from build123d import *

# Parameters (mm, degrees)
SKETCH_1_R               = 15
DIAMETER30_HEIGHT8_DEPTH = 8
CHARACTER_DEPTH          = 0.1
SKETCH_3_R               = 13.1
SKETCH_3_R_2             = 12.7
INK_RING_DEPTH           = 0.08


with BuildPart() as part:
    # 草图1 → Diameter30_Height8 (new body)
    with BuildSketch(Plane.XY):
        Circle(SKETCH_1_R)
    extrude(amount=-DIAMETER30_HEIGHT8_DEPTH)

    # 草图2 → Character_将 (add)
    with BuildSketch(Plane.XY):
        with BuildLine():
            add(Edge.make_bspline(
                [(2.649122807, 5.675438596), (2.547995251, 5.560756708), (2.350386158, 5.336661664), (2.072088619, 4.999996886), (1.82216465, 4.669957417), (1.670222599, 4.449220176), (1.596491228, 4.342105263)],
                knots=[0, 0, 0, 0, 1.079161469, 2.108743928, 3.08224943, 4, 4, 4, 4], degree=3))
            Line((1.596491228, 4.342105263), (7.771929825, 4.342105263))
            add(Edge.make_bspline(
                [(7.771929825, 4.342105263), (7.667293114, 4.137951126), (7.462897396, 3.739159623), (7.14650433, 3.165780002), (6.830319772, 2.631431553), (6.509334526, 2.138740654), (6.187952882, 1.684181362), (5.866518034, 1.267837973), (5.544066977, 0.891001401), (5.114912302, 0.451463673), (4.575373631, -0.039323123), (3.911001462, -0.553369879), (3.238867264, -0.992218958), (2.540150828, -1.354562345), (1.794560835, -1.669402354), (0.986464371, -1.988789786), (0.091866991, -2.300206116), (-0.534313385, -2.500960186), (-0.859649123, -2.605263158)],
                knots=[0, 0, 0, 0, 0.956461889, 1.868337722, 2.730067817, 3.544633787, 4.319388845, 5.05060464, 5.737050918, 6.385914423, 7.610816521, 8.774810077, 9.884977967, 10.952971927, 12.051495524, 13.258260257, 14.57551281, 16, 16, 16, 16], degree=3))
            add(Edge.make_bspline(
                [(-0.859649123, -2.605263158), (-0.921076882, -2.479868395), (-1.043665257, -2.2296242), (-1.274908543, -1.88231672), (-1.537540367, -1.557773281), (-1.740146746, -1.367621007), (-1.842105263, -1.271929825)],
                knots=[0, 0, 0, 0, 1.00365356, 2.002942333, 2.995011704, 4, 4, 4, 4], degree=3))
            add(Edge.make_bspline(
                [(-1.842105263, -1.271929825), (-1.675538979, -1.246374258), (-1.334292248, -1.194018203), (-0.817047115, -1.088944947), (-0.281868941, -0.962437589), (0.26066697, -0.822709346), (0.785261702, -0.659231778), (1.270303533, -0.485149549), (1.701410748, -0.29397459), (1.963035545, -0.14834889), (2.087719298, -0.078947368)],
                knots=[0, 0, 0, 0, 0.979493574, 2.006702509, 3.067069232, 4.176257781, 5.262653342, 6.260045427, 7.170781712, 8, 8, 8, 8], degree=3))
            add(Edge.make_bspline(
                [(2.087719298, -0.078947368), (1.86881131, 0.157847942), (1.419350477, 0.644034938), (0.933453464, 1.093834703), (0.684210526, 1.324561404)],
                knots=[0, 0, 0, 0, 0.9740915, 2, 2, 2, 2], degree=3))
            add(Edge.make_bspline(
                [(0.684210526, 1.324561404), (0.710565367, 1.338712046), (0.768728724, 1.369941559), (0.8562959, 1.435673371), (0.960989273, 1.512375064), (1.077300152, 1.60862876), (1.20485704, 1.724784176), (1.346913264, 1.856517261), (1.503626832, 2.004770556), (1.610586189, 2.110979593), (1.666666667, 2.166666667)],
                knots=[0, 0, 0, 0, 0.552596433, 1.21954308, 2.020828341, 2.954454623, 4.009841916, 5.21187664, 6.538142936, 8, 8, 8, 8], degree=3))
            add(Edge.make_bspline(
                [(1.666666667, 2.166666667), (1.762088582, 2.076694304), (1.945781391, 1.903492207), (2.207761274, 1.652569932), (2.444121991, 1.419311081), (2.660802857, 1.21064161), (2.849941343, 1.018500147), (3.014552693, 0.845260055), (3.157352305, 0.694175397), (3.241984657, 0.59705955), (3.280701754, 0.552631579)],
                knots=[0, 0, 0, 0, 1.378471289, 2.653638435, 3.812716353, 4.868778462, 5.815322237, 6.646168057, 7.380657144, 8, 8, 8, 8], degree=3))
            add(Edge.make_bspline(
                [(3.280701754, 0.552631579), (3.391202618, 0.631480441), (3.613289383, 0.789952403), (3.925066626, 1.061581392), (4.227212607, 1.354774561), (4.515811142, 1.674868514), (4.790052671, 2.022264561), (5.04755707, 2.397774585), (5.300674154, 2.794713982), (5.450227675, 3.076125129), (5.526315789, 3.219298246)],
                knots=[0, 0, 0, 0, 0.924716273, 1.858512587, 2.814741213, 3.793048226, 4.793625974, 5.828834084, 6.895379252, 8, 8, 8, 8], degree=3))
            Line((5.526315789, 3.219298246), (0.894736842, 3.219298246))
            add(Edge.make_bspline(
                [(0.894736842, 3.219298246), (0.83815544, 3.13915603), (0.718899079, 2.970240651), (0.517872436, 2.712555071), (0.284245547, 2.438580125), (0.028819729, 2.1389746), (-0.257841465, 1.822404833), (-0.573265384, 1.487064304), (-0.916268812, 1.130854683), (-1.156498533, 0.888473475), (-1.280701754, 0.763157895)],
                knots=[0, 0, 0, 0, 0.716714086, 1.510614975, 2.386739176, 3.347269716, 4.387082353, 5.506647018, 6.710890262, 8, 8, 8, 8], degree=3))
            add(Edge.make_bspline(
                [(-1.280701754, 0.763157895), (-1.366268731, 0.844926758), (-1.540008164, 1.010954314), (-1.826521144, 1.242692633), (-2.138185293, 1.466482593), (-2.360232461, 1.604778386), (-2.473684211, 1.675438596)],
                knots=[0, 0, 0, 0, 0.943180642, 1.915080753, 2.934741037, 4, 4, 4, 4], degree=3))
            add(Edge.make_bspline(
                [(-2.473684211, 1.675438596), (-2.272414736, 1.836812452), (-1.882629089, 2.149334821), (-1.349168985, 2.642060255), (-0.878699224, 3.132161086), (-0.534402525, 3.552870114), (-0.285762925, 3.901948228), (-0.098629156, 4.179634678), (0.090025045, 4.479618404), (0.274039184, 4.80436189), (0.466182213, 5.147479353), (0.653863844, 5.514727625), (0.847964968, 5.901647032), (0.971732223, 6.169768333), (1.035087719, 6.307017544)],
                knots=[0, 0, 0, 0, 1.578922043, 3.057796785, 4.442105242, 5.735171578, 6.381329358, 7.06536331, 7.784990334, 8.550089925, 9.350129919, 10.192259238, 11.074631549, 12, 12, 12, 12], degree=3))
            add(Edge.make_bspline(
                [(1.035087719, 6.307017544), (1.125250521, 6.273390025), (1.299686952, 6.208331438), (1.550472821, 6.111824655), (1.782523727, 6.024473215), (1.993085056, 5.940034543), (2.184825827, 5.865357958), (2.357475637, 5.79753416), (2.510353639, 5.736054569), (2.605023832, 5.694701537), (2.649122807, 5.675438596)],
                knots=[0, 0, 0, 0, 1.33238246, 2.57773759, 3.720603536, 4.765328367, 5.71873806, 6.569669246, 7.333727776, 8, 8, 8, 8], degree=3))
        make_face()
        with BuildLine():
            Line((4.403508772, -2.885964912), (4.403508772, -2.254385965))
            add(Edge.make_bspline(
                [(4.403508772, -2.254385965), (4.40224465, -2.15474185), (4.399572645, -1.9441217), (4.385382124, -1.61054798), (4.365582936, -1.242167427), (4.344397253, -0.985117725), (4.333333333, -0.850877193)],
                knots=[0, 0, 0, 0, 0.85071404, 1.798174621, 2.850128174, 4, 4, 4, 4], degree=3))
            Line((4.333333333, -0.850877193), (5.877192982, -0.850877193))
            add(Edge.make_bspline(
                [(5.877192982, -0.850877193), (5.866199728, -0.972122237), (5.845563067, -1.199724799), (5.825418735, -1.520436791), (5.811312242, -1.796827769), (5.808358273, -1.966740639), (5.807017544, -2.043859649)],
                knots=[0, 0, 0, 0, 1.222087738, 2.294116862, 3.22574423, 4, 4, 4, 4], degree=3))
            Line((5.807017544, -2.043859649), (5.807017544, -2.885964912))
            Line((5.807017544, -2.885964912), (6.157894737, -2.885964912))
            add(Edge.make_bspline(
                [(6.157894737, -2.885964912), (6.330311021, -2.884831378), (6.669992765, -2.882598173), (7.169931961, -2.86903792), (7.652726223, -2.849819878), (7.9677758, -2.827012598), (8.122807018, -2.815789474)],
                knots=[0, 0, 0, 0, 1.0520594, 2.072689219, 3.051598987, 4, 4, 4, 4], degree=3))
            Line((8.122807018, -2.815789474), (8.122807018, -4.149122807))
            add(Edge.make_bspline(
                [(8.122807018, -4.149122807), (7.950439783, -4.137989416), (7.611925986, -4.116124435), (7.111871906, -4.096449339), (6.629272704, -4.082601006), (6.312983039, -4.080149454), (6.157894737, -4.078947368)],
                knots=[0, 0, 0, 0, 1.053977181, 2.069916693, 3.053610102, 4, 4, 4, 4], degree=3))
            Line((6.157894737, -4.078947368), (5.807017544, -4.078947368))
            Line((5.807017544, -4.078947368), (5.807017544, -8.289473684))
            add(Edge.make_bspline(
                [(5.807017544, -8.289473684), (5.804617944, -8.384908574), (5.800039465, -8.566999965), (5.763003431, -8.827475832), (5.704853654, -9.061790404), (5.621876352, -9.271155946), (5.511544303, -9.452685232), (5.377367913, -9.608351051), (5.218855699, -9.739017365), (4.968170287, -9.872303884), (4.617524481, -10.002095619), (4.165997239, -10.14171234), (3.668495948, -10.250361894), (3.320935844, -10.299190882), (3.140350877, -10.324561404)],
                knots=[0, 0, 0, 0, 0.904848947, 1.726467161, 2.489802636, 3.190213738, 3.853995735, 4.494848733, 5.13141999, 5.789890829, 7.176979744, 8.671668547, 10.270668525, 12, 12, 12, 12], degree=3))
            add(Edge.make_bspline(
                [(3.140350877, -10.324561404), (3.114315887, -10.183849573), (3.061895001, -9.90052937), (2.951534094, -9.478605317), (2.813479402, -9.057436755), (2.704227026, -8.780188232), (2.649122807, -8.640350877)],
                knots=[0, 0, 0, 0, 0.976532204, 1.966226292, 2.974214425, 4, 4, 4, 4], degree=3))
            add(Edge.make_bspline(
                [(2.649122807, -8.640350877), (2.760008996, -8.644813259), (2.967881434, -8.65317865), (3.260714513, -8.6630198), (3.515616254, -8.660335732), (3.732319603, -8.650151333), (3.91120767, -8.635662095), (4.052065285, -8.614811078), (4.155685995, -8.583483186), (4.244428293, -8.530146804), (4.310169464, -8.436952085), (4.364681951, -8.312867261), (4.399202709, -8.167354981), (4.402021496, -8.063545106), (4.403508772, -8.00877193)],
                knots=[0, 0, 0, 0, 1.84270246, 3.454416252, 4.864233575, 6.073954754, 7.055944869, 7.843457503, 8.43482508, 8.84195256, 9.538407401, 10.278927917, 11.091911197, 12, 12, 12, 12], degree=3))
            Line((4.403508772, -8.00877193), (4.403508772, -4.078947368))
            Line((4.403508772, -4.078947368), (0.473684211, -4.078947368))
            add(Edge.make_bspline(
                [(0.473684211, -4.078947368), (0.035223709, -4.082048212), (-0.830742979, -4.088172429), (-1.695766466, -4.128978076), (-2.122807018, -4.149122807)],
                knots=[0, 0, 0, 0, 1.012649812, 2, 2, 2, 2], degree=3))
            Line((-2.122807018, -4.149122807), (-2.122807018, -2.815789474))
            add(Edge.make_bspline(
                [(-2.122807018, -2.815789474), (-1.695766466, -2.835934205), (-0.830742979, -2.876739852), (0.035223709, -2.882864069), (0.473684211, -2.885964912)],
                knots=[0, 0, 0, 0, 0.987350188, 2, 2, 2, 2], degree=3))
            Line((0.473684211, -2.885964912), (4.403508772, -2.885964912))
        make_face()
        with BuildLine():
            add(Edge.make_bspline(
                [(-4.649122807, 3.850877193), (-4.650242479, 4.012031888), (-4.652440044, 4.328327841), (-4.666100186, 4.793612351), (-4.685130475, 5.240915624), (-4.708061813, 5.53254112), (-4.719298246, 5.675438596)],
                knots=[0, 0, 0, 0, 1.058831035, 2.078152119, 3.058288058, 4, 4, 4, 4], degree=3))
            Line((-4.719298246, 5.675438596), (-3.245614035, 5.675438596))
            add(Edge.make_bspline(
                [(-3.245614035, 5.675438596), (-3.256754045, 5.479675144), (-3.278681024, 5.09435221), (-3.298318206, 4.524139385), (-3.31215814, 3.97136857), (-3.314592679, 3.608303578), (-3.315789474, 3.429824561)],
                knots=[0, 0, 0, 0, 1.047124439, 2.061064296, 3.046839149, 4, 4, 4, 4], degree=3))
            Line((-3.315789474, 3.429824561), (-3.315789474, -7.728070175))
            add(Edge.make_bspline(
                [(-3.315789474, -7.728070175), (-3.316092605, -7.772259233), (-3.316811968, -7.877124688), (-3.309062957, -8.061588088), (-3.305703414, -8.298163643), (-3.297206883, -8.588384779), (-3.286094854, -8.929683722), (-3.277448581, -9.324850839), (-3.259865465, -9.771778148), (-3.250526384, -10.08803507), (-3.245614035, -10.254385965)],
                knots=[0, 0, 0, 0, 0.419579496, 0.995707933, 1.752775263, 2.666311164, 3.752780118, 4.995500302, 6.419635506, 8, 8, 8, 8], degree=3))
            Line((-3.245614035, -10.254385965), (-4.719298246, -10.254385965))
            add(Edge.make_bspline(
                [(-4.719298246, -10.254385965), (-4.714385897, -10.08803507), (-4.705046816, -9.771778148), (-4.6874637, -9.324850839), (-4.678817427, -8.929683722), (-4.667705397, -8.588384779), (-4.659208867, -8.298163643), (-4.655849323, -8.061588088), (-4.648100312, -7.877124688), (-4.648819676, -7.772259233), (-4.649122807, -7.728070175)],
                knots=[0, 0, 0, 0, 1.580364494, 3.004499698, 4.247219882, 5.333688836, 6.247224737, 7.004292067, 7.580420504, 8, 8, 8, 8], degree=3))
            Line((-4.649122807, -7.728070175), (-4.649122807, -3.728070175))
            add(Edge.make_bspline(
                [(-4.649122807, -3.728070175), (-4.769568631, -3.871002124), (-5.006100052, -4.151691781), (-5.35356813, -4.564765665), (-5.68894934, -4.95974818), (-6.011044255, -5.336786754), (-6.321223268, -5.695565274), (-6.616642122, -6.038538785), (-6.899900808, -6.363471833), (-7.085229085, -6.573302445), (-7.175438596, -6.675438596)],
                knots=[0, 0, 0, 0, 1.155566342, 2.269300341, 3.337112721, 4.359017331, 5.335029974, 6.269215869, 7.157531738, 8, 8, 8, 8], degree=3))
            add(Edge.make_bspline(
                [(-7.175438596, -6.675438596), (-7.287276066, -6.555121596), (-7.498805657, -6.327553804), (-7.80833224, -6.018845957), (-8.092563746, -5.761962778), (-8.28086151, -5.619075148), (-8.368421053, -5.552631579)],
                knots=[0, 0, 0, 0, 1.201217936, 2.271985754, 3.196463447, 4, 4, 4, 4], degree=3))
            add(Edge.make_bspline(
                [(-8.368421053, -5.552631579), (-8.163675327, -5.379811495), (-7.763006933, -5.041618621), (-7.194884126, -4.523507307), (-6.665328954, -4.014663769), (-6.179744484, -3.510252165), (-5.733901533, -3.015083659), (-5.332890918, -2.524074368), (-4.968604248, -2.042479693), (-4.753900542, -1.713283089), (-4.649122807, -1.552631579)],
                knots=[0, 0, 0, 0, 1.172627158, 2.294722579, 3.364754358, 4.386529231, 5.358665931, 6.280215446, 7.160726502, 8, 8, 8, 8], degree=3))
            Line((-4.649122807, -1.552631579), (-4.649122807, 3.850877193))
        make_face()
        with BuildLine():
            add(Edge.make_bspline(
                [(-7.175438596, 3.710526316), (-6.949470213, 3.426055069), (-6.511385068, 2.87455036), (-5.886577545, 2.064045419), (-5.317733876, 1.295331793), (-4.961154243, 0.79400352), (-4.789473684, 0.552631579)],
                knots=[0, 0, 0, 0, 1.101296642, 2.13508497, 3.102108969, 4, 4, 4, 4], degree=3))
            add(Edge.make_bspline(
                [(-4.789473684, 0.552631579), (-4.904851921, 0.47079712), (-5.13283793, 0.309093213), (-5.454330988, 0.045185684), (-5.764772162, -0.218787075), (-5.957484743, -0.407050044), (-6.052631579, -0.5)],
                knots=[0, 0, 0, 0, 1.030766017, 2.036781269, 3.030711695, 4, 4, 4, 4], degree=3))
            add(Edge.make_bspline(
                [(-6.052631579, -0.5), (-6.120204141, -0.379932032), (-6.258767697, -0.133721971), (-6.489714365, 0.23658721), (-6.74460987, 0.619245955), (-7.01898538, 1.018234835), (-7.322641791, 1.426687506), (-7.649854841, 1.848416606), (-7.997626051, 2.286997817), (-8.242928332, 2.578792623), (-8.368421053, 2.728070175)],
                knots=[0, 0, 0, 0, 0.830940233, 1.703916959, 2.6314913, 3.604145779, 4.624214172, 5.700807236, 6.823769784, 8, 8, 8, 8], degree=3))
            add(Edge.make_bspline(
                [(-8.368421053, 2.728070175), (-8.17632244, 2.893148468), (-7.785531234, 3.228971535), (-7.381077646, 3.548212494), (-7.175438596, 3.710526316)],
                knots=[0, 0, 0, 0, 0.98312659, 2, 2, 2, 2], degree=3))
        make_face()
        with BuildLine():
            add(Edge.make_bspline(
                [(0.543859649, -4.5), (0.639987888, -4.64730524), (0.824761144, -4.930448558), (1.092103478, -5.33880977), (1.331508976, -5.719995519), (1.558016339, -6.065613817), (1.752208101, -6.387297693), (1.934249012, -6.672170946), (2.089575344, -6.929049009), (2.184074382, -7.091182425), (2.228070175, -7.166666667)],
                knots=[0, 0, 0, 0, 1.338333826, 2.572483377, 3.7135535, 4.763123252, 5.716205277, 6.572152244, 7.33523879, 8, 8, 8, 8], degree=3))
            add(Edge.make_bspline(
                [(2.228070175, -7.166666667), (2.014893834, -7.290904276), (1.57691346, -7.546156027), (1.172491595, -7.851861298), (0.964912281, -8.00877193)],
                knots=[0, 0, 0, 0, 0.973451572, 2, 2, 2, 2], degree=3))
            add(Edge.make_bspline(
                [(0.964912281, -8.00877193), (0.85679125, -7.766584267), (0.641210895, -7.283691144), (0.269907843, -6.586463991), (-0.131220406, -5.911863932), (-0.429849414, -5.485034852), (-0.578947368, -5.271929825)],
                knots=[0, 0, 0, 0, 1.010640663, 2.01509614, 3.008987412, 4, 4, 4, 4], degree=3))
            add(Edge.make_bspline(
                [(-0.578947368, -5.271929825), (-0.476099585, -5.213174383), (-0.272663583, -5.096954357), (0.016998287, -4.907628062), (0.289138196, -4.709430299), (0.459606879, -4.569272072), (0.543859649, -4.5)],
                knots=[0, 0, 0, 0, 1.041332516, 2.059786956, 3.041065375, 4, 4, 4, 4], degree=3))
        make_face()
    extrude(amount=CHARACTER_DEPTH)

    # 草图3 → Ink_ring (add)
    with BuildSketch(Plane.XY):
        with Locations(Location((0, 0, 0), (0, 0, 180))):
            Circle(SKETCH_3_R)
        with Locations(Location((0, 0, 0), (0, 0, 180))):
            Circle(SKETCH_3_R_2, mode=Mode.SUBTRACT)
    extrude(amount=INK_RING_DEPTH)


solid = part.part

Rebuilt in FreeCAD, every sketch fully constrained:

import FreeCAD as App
import Part
import Sketcher
Q = App.Units.Quantity

doc = App.newDocument("Part")
params = doc.addObject("Spreadsheet::Sheet", "Params")
for row, (alias, value) in enumerate([
    ("sketch1_diameter", "30 mm"),
    ("pad1_length", "8 mm"),
    ("pad2_length", "0.1 mm"),
    ("sketch3_diameter", "26.2 mm"),
    ("sketch3_diameter2", "25.4 mm"),
    ("pad3_length", "0.08 mm"),
], start=1):
    params.set(f"A{row}", alias)
    params.set(f"B{row}", "=" + value)
    params.setAlias(f"B{row}", alias)

body = doc.addObject("PartDesign::Body", "Body")

sketch1 = doc.addObject("Sketcher::SketchObject", "Sketch")
body.addObject(sketch1)
sketch1.AttachmentSupport = (doc.XY_Plane, [""])
sketch1.MapMode = "FlatFace"
sketch1.addGeometry(Part.Circle(App.Vector(0, 0, 0), App.Vector(0, 0, 1), 15), False)
sketch1.addConstraint(Sketcher.Constraint("Coincident", 0, 3, -1, 1))
sketch1.addConstraint(Sketcher.Constraint("Diameter", 0, Q("30 mm")))
sketch1.setExpression("Constraints[1]", "Params.sketch1_diameter")
pad1 = doc.addObject("PartDesign::Pad", "Pad")
body.addObject(pad1)
pad1.Profile = sketch1
pad1.setExpression("Length", "Params.pad1_length")
pad1.Reversed = True

sketch2 = doc.addObject("Sketcher::SketchObject", "Sketch001")
body.addObject(sketch2)
sketch2.AttachmentSupport = (doc.XY_Plane, [""])
sketch2.MapMode = "FlatFace"
sketch2.addGeometry(Part.BSplineCurve([App.Vector(2.649123, 5.675439, 0), App.Vector(2.547995, 5.560757, 0), App.Vector(2.350386, 5.336662, 0), App.Vector(2.072089, 4.999997, 0), App.Vector(1.822165, 4.669957, 0), App.Vector(1.670223, 4.44922, 0), App.Vector(1.596491, 4.342105, 0)], [4, 1, 1, 1, 4], [0, 1.079161469, 2.108743928, 3.08224943, 4], False, 3, [1, 1, 1, 1, 1, 1, 1], False), False)
sketch2.addGeometry(Part.BSplineCurve([App.Vector(1.035088, 6.307018, 0), App.Vector(1.125251, 6.27339, 0), App.Vector(1.299687, 6.208331, 0), App.Vector(1.550473, 6.111825, 0), App.Vector(1.782524, 6.024473, 0), App.Vector(1.993085, 5.940035, 0), App.Vector(2.184826, 5.865358, 0), App.Vector(2.357476, 5.797534, 0), App.Vector(2.510354, 5.736055, 0), App.Vector(2.605024, 5.694702, 0), App.Vector(2.649123, 5.675439, 0)], [4, 1, 1, 1, 1, 1, 1, 1, 4], [0, 1.33238246, 2.57773759, 3.720603536, 4.765328367, 5.71873806, 6.569669246, 7.333727776, 8], False, 3, [1, 1, 1, 1, 1, 1, 1, 1, 1, 1, 1], False), False)
sketch2.addGeometry(Part.BSplineCurve([App.Vector(-2.473684, 1.675439, 0), App.Vector(-2.272415, 1.836812, 0), App.Vector(-1.882629, 2.149335, 0), App.Vector(-1.349169, 2.64206, 0), App.Vector(-0.878699, 3.132161, 0), App.Vector(-0.534403, 3.55287, 0), App.Vector(-0.285763, 3.901948, 0), App.Vector(-0.098629, 4.179635, 0), App.Vector(0.090025, 4.479618, 0), App.Vector(0.274039, 4.804362, 0), App.Vector(0.466182, 5.147479, 0), App.Vector(0.653864, 5.514728, 0), App.Vector(0.847965, 5.901647, 0), App.Vector(0.971732, 6.169768, 0), App.Vector(1.035088, 6.307018, 0)], [4, 1, 1, 1, 1, 1, 1, 1, 1, 1, 1, 1, 4], [0, 1.578922043, 3.057796785, 4.442105242, 5.735171578, 6.381329358, 7.06536331, 7.784990334, 8.550089925, 9.350129919, 10.192259238, 11.074631549, 12], False, 3, [1, 1, 1, 1, 1, 1, 1, 1, 1, 1, 1, 1, 1, 1, 1], False), False)
sketch2.addGeometry(Part.BSplineCurve([App.Vector(-1.280702, 0.763158, 0), App.Vector(-1.366269, 0.844927, 0), App.Vector(-1.540008, 1.010954, 0), App.Vector(-1.826521, 1.242693, 0), App.Vector(-2.138185, 1.466483, 0), App.Vector(-2.360232, 1.604778, 0), App.Vector(-2.473684, 1.675439, 0)], [4, 1, 1, 1, 4], [0, 0.943180642, 1.915080753, 2.934741037, 4], False, 3, [1, 1, 1, 1, 1, 1, 1], False), False)
sketch2.addGeometry(Part.BSplineCurve([App.Vector(0.894737, 3.219298, 0), App.Vector(0.838155, 3.139156, 0), App.Vector(0.718899, 2.970241, 0), App.Vector(0.517872, 2.712555, 0), App.Vector(0.284246, 2.43858, 0), App.Vector(0.02882, 2.138975, 0), App.Vector(-0.257841, 1.822405, 0), App.Vector(-0.573265, 1.487064, 0), App.Vector(-0.916269, 1.130855, 0), App.Vector(-1.156499, 0.888473, 0), App.Vector(-1.280702, 0.763158, 0)], [4, 1, 1, 1, 1, 1, 1, 1, 4], [0, 0.716714086, 1.510614975, 2.386739176, 3.347269716, 4.387082353, 5.506647018, 6.710890262, 8], False, 3, [1, 1, 1, 1, 1, 1, 1, 1, 1, 1, 1], False), False)
sketch2.addGeometry(Part.LineSegment(App.Vector(0.894737, 3.219298, 0), App.Vector(5.526316, 3.219298, 0)), False)
sketch2.addGeometry(Part.BSplineCurve([App.Vector(3.280702, 0.552632, 0), App.Vector(3.391203, 0.63148, 0), App.Vector(3.613289, 0.789952, 0), App.Vector(3.925067, 1.061581, 0), App.Vector(4.227213, 1.354775, 0), App.Vector(4.515811, 1.674869, 0), App.Vector(4.790053, 2.022265, 0), App.Vector(5.047557, 2.397775, 0), App.Vector(5.300674, 2.794714, 0), App.Vector(5.450228, 3.076125, 0), App.Vector(5.526316, 3.219298, 0)], [4, 1, 1, 1, 1, 1, 1, 1, 4], [0, 0.924716273, 1.858512587, 2.814741213, 3.793048226, 4.793625974, 5.828834084, 6.895379252, 8], False, 3, [1, 1, 1, 1, 1, 1, 1, 1, 1, 1, 1], False), False)
sketch2.addGeometry(Part.BSplineCurve([App.Vector(1.666667, 2.166667, 0), App.Vector(1.762089, 2.076694, 0), App.Vector(1.945781, 1.903492, 0), App.Vector(2.207761, 1.65257, 0), App.Vector(2.444122, 1.419311, 0), App.Vector(2.660803, 1.210642, 0), App.Vector(2.849941, 1.0185, 0), App.Vector(3.014553, 0.84526, 0), App.Vector(3.157352, 0.694175, 0), App.Vector(3.241985, 0.59706, 0), App.Vector(3.280702, 0.552632, 0)], [4, 1, 1, 1, 1, 1, 1, 1, 4], [0, 1.378471289, 2.653638435, 3.812716353, 4.868778462, 5.815322237, 6.646168057, 7.380657144, 8], False, 3, [1, 1, 1, 1, 1, 1, 1, 1, 1, 1, 1], False), False)
sketch2.addGeometry(Part.BSplineCurve([App.Vector(0.684211, 1.324561, 0), App.Vector(0.710565, 1.338712, 0), App.Vector(0.768729, 1.369942, 0), App.Vector(0.856296, 1.435673, 0), App.Vector(0.960989, 1.512375, 0), App.Vector(1.0773, 1.608629, 0), App.Vector(1.204857, 1.724784, 0), App.Vector(1.346913, 1.856517, 0), App.Vector(1.503627, 2.004771, 0), App.Vector(1.610586, 2.11098, 0), App.Vector(1.666667, 2.166667, 0)], [4, 1, 1, 1, 1, 1, 1, 1, 4], [0, 0.552596433, 1.21954308, 2.020828341, 2.954454623, 4.009841916, 5.21187664, 6.538142936, 8], False, 3, [1, 1, 1, 1, 1, 1, 1, 1, 1, 1, 1], False), False)
sketch2.addGeometry(Part.BSplineCurve([App.Vector(2.087719, -0.078947, 0), App.Vector(1.868811, 0.157848, 0), App.Vector(1.41935, 0.644035, 0), App.Vector(0.933453, 1.093835, 0), App.Vector(0.684211, 1.324561, 0)], [4, 1, 4], [0, 0.9740915, 2], False, 3, [1, 1, 1, 1, 1], False), False)
sketch2.addGeometry(Part.BSplineCurve([App.Vector(-1.842105, -1.27193, 0), App.Vector(-1.675539, -1.246374, 0), App.Vector(-1.334292, -1.194018, 0), App.Vector(-0.817047, -1.088945, 0), App.Vector(-0.281869, -0.962438, 0), App.Vector(0.260667, -0.822709, 0), App.Vector(0.785262, -0.659232, 0), App.Vector(1.270304, -0.48515, 0), App.Vector(1.701411, -0.293975, 0), App.Vector(1.963036, -0.148349, 0), App.Vector(2.087719, -0.078947, 0)], [4, 1, 1, 1, 1, 1, 1, 1, 4], [0, 0.979493574, 2.006702509, 3.067069232, 4.176257781, 5.262653342, 6.260045427, 7.170781712, 8], False, 3, [1, 1, 1, 1, 1, 1, 1, 1, 1, 1, 1], False), False)
sketch2.addGeometry(Part.BSplineCurve([App.Vector(-0.859649, -2.605263, 0), App.Vector(-0.921077, -2.479868, 0), App.Vector(-1.043665, -2.229624, 0), App.Vector(-1.274909, -1.882317, 0), App.Vector(-1.53754, -1.557773, 0), App.Vector(-1.740147, -1.367621, 0), App.Vector(-1.842105, -1.27193, 0)], [4, 1, 1, 1, 4], [0, 1.00365356, 2.002942333, 2.995011704, 4], False, 3, [1, 1, 1, 1, 1, 1, 1], False), False)
sketch2.addGeometry(Part.BSplineCurve([App.Vector(7.77193, 4.342105, 0), App.Vector(7.667293, 4.137951, 0), App.Vector(7.462897, 3.73916, 0), App.Vector(7.146504, 3.16578, 0), App.Vector(6.83032, 2.631432, 0), App.Vector(6.509335, 2.138741, 0), App.Vector(6.187953, 1.684181, 0), App.Vector(5.866518, 1.267838, 0), App.Vector(5.544067, 0.891001, 0), App.Vector(5.114912, 0.451464, 0), App.Vector(4.575374, -0.039323, 0), App.Vector(3.911001, -0.55337, 0), App.Vector(3.238867, -0.992219, 0), App.Vector(2.540151, -1.354562, 0), App.Vector(1.794561, -1.669402, 0), App.Vector(0.986464, -1.98879, 0), App.Vector(0.091867, -2.300206, 0), App.Vector(-0.534313, -2.50096, 0), App.Vector(-0.859649, -2.605263, 0)], [4, 1, 1, 1, 1, 1, 1, 1, 1, 1, 1, 1, 1, 1, 1, 1, 4], [0, 0.956461889, 1.868337722, 2.730067817, 3.544633787, 4.319388845, 5.05060464, 5.737050918, 6.385914423, 7.610816521, 8.774810077, 9.884977967, 10.952971927, 12.051495524, 13.258260257, 14.57551281, 16], False, 3, [1, 1, 1, 1, 1, 1, 1, 1, 1, 1, 1, 1, 1, 1, 1, 1, 1, 1, 1], False), False)
sketch2.addGeometry(Part.LineSegment(App.Vector(7.77193, 4.342105, 0), App.Vector(1.596491, 4.342105, 0)), False)
sketch2.addGeometry(Part.LineSegment(App.Vector(4.403509, -2.254386, 0), App.Vector(4.403509, -2.885965, 0)), False)
sketch2.addGeometry(Part.LineSegment(App.Vector(4.403509, -2.885965, 0), App.Vector(0.473684, -2.885965, 0)), False)
sketch2.addGeometry(Part.BSplineCurve([App.Vector(-2.122807, -2.815789, 0), App.Vector(-1.695766, -2.835934, 0), App.Vector(-0.830743, -2.87674, 0), App.Vector(0.035224, -2.882864, 0), App.Vector(0.473684, -2.885965, 0)], [4, 1, 4], [0, 0.987350188, 2], False, 3, [1, 1, 1, 1, 1], False), False)
sketch2.addGeometry(Part.LineSegment(App.Vector(-2.122807, -2.815789, 0), App.Vector(-2.122807, -4.149123, 0)), False)
sketch2.addGeometry(Part.BSplineCurve([App.Vector(0.473684, -4.078947, 0), App.Vector(0.035224, -4.082048, 0), App.Vector(-0.830743, -4.088172, 0), App.Vector(-1.695766, -4.128978, 0), App.Vector(-2.122807, -4.149123, 0)], [4, 1, 4], [0, 1.012649812, 2], False, 3, [1, 1, 1, 1, 1], False), False)
sketch2.addGeometry(Part.LineSegment(App.Vector(0.473684, -4.078947, 0), App.Vector(4.403509, -4.078947, 0)), False)
sketch2.addGeometry(Part.LineSegment(App.Vector(4.403509, -4.078947, 0), App.Vector(4.403509, -8.008772, 0)), False)
sketch2.addGeometry(Part.BSplineCurve([App.Vector(2.649123, -8.640351, 0), App.Vector(2.760009, -8.644813, 0), App.Vector(2.967881, -8.653179, 0), App.Vector(3.260715, -8.66302, 0), App.Vector(3.515616, -8.660336, 0), App.Vector(3.73232, -8.650151, 0), App.Vector(3.911208, -8.635662, 0), App.Vector(4.052065, -8.614811, 0), App.Vector(4.155686, -8.583483, 0), App.Vector(4.244428, -8.530147, 0), App.Vector(4.310169, -8.436952, 0), App.Vector(4.364682, -8.312867, 0), App.Vector(4.399203, -8.167355, 0), App.Vector(4.402021, -8.063545, 0), App.Vector(4.403509, -8.008772, 0)], [4, 1, 1, 1, 1, 1, 1, 1, 1, 1, 1, 1, 4], [0, 1.84270246, 3.454416252, 4.864233575, 6.073954754, 7.055944869, 7.843457503, 8.43482508, 8.84195256, 9.538407401, 10.278927917, 11.091911197, 12], False, 3, [1, 1, 1, 1, 1, 1, 1, 1, 1, 1, 1, 1, 1, 1, 1], False), False)
sketch2.addGeometry(Part.BSplineCurve([App.Vector(3.140351, -10.324561, 0), App.Vector(3.114316, -10.18385, 0), App.Vector(3.061895, -9.900529, 0), App.Vector(2.951534, -9.478605, 0), App.Vector(2.813479, -9.057437, 0), App.Vector(2.704227, -8.780188, 0), App.Vector(2.649123, -8.640351, 0)], [4, 1, 1, 1, 4], [0, 0.976532204, 1.966226292, 2.974214425, 4], False, 3, [1, 1, 1, 1, 1, 1, 1], False), False)
sketch2.addGeometry(Part.BSplineCurve([App.Vector(5.807018, -8.289474, 0), App.Vector(5.804618, -8.384909, 0), App.Vector(5.800039, -8.567, 0), App.Vector(5.763003, -8.827476, 0), App.Vector(5.704854, -9.06179, 0), App.Vector(5.621876, -9.271156, 0), App.Vector(5.511544, -9.452685, 0), App.Vector(5.377368, -9.608351, 0), App.Vector(5.218856, -9.739017, 0), App.Vector(4.96817, -9.872304, 0), App.Vector(4.617524, -10.002096, 0), App.Vector(4.165997, -10.141712, 0), App.Vector(3.668496, -10.250362, 0), App.Vector(3.320936, -10.299191, 0), App.Vector(3.140351, -10.324561, 0)], [4, 1, 1, 1, 1, 1, 1, 1, 1, 1, 1, 1, 4], [0, 0.904848947, 1.726467161, 2.489802636, 3.190213738, 3.853995735, 4.494848733, 5.13141999, 5.789890829, 7.176979744, 8.671668547, 10.270668525, 12], False, 3, [1, 1, 1, 1, 1, 1, 1, 1, 1, 1, 1, 1, 1, 1, 1], False), False)
sketch2.addGeometry(Part.LineSegment(App.Vector(5.807018, -8.289474, 0), App.Vector(5.807018, -4.078947, 0)), False)
sketch2.addGeometry(Part.LineSegment(App.Vector(5.807018, -4.078947, 0), App.Vector(6.157895, -4.078947, 0)), False)
sketch2.addGeometry(Part.BSplineCurve([App.Vector(8.122807, -4.149123, 0), App.Vector(7.95044, -4.137989, 0), App.Vector(7.611926, -4.116124, 0), App.Vector(7.111872, -4.096449, 0), App.Vector(6.629273, -4.082601, 0), App.Vector(6.312983, -4.080149, 0), App.Vector(6.157895, -4.078947, 0)], [4, 1, 1, 1, 4], [0, 1.053977181, 2.069916693, 3.053610102, 4], False, 3, [1, 1, 1, 1, 1, 1, 1], False), False)
sketch2.addGeometry(Part.LineSegment(App.Vector(8.122807, -4.149123, 0), App.Vector(8.122807, -2.815789, 0)), False)
sketch2.addGeometry(Part.BSplineCurve([App.Vector(6.157895, -2.885965, 0), App.Vector(6.330311, -2.884831, 0), App.Vector(6.669993, -2.882598, 0), App.Vector(7.169932, -2.869038, 0), App.Vector(7.652726, -2.84982, 0), App.Vector(7.967776, -2.827013, 0), App.Vector(8.122807, -2.815789, 0)], [4, 1, 1, 1, 4], [0, 1.0520594, 2.072689219, 3.051598987, 4], False, 3, [1, 1, 1, 1, 1, 1, 1], False), False)
sketch2.addGeometry(Part.LineSegment(App.Vector(6.157895, -2.885965, 0), App.Vector(5.807018, -2.885965, 0)), False)
sketch2.addGeometry(Part.LineSegment(App.Vector(5.807018, -2.885965, 0), App.Vector(5.807018, -2.04386, 0)), False)
sketch2.addGeometry(Part.BSplineCurve([App.Vector(5.877193, -0.850877, 0), App.Vector(5.8662, -0.972122, 0), App.Vector(5.845563, -1.199725, 0), App.Vector(5.825419, -1.520437, 0), App.Vector(5.811312, -1.796828, 0), App.Vector(5.808358, -1.966741, 0), App.Vector(5.807018, -2.04386, 0)], [4, 1, 1, 1, 4], [0, 1.222087738, 2.294116862, 3.22574423, 4], False, 3, [1, 1, 1, 1, 1, 1, 1], False), False)
sketch2.addGeometry(Part.LineSegment(App.Vector(5.877193, -0.850877, 0), App.Vector(4.333333, -0.850877, 0)), False)
sketch2.addGeometry(Part.BSplineCurve([App.Vector(4.403509, -2.254386, 0), App.Vector(4.402245, -2.154742, 0), App.Vector(4.399573, -1.944122, 0), App.Vector(4.385382, -1.610548, 0), App.Vector(4.365583, -1.242167, 0), App.Vector(4.344397, -0.985118, 0), App.Vector(4.333333, -0.850877, 0)], [4, 1, 1, 1, 4], [0, 0.85071404, 1.798174621, 2.850128174, 4], False, 3, [1, 1, 1, 1, 1, 1, 1], False), False)
sketch2.addGeometry(Part.BSplineCurve([App.Vector(-4.649123, 3.850877, 0), App.Vector(-4.650242, 4.012032, 0), App.Vector(-4.65244, 4.328328, 0), App.Vector(-4.6661, 4.793612, 0), App.Vector(-4.68513, 5.240916, 0), App.Vector(-4.708062, 5.532541, 0), App.Vector(-4.719298, 5.675439, 0)], [4, 1, 1, 1, 4], [0, 1.058831035, 2.078152119, 3.058288058, 4], False, 3, [1, 1, 1, 1, 1, 1, 1], False), False)
sketch2.addGeometry(Part.LineSegment(App.Vector(-4.649123, 3.850877, 0), App.Vector(-4.649123, -1.552632, 0)), False)
sketch2.addGeometry(Part.BSplineCurve([App.Vector(-8.368421, -5.552632, 0), App.Vector(-8.163675, -5.379811, 0), App.Vector(-7.763007, -5.041619, 0), App.Vector(-7.194884, -4.523507, 0), App.Vector(-6.665329, -4.014664, 0), App.Vector(-6.179744, -3.510252, 0), App.Vector(-5.733902, -3.015084, 0), App.Vector(-5.332891, -2.524074, 0), App.Vector(-4.968604, -2.04248, 0), App.Vector(-4.753901, -1.713283, 0), App.Vector(-4.649123, -1.552632, 0)], [4, 1, 1, 1, 1, 1, 1, 1, 4], [0, 1.172627158, 2.294722579, 3.364754358, 4.386529231, 5.358665931, 6.280215446, 7.160726502, 8], False, 3, [1, 1, 1, 1, 1, 1, 1, 1, 1, 1, 1], False), False)
sketch2.addGeometry(Part.BSplineCurve([App.Vector(-7.175439, -6.675439, 0), App.Vector(-7.287276, -6.555122, 0), App.Vector(-7.498806, -6.327554, 0), App.Vector(-7.808332, -6.018846, 0), App.Vector(-8.092564, -5.761963, 0), App.Vector(-8.280862, -5.619075, 0), App.Vector(-8.368421, -5.552632, 0)], [4, 1, 1, 1, 4], [0, 1.201217936, 2.271985754, 3.196463447, 4], False, 3, [1, 1, 1, 1, 1, 1, 1], False), False)
sketch2.addGeometry(Part.BSplineCurve([App.Vector(-4.649123, -3.72807, 0), App.Vector(-4.769569, -3.871002, 0), App.Vector(-5.0061, -4.151692, 0), App.Vector(-5.353568, -4.564766, 0), App.Vector(-5.688949, -4.959748, 0), App.Vector(-6.011044, -5.336787, 0), App.Vector(-6.321223, -5.695565, 0), App.Vector(-6.616642, -6.038539, 0), App.Vector(-6.899901, -6.363472, 0), App.Vector(-7.085229, -6.573302, 0), App.Vector(-7.175439, -6.675439, 0)], [4, 1, 1, 1, 1, 1, 1, 1, 4], [0, 1.155566342, 2.269300341, 3.337112721, 4.359017331, 5.335029974, 6.269215869, 7.157531738, 8], False, 3, [1, 1, 1, 1, 1, 1, 1, 1, 1, 1, 1], False), False)
sketch2.addGeometry(Part.LineSegment(App.Vector(-4.649123, -3.72807, 0), App.Vector(-4.649123, -7.72807, 0)), False)
sketch2.addGeometry(Part.BSplineCurve([App.Vector(-4.719298, -10.254386, 0), App.Vector(-4.714386, -10.088035, 0), App.Vector(-4.705047, -9.771778, 0), App.Vector(-4.687464, -9.324851, 0), App.Vector(-4.678817, -8.929684, 0), App.Vector(-4.667705, -8.588385, 0), App.Vector(-4.659209, -8.298164, 0), App.Vector(-4.655849, -8.061588, 0), App.Vector(-4.6481, -7.877125, 0), App.Vector(-4.64882, -7.772259, 0), App.Vector(-4.649123, -7.72807, 0)], [4, 1, 1, 1, 1, 1, 1, 1, 4], [0, 1.580364494, 3.004499698, 4.247219882, 5.333688836, 6.247224737, 7.004292067, 7.580420504, 8], False, 3, [1, 1, 1, 1, 1, 1, 1, 1, 1, 1, 1], False), False)
sketch2.addGeometry(Part.LineSegment(App.Vector(-4.719298, -10.254386, 0), App.Vector(-3.245614, -10.254386, 0)), False)
sketch2.addGeometry(Part.BSplineCurve([App.Vector(-3.315789, -7.72807, 0), App.Vector(-3.316093, -7.772259, 0), App.Vector(-3.316812, -7.877125, 0), App.Vector(-3.309063, -8.061588, 0), App.Vector(-3.305703, -8.298164, 0), App.Vector(-3.297207, -8.588385, 0), App.Vector(-3.286095, -8.929684, 0), App.Vector(-3.277449, -9.324851, 0), App.Vector(-3.259865, -9.771778, 0), App.Vector(-3.250526, -10.088035, 0), App.Vector(-3.245614, -10.254386, 0)], [4, 1, 1, 1, 1, 1, 1, 1, 4], [0, 0.419579496, 0.995707933, 1.752775263, 2.666311164, 3.752780118, 4.995500302, 6.419635506, 8], False, 3, [1, 1, 1, 1, 1, 1, 1, 1, 1, 1, 1], False), False)
sketch2.addGeometry(Part.LineSegment(App.Vector(-3.315789, -7.72807, 0), App.Vector(-3.315789, 3.429825, 0)), False)
sketch2.addGeometry(Part.BSplineCurve([App.Vector(-3.245614, 5.675439, 0), App.Vector(-3.256754, 5.479675, 0), App.Vector(-3.278681, 5.094352, 0), App.Vector(-3.298318, 4.524139, 0), App.Vector(-3.312158, 3.971369, 0), App.Vector(-3.314593, 3.608304, 0), App.Vector(-3.315789, 3.429825, 0)], [4, 1, 1, 1, 4], [0, 1.047124439, 2.061064296, 3.046839149, 4], False, 3, [1, 1, 1, 1, 1, 1, 1], False), False)
sketch2.addGeometry(Part.LineSegment(App.Vector(-3.245614, 5.675439, 0), App.Vector(-4.719298, 5.675439, 0)), False)
sketch2.addGeometry(Part.BSplineCurve([App.Vector(-7.175439, 3.710526, 0), App.Vector(-6.94947, 3.426055, 0), App.Vector(-6.511385, 2.87455, 0), App.Vector(-5.886578, 2.064045, 0), App.Vector(-5.317734, 1.295332, 0), App.Vector(-4.961154, 0.794004, 0), App.Vector(-4.789474, 0.552632, 0)], [4, 1, 1, 1, 4], [0, 1.101296642, 2.13508497, 3.102108969, 4], False, 3, [1, 1, 1, 1, 1, 1, 1], False), False)
sketch2.addGeometry(Part.BSplineCurve([App.Vector(-8.368421, 2.72807, 0), App.Vector(-8.176322, 2.893148, 0), App.Vector(-7.785531, 3.228972, 0), App.Vector(-7.381078, 3.548212, 0), App.Vector(-7.175439, 3.710526, 0)], [4, 1, 4], [0, 0.98312659, 2], False, 3, [1, 1, 1, 1, 1], False), False)
sketch2.addGeometry(Part.BSplineCurve([App.Vector(-6.052632, -0.5, 0), App.Vector(-6.120204, -0.379932, 0), App.Vector(-6.258768, -0.133722, 0), App.Vector(-6.489714, 0.236587, 0), App.Vector(-6.74461, 0.619246, 0), App.Vector(-7.018985, 1.018235, 0), App.Vector(-7.322642, 1.426688, 0), App.Vector(-7.649855, 1.848417, 0), App.Vector(-7.997626, 2.286998, 0), App.Vector(-8.242928, 2.578793, 0), App.Vector(-8.368421, 2.72807, 0)], [4, 1, 1, 1, 1, 1, 1, 1, 4], [0, 0.830940233, 1.703916959, 2.6314913, 3.604145779, 4.624214172, 5.700807236, 6.823769784, 8], False, 3, [1, 1, 1, 1, 1, 1, 1, 1, 1, 1, 1], False), False)
sketch2.addGeometry(Part.BSplineCurve([App.Vector(-4.789474, 0.552632, 0), App.Vector(-4.904852, 0.470797, 0), App.Vector(-5.132838, 0.309093, 0), App.Vector(-5.454331, 0.045186, 0), App.Vector(-5.764772, -0.218787, 0), App.Vector(-5.957485, -0.40705, 0), App.Vector(-6.052632, -0.5, 0)], [4, 1, 1, 1, 4], [0, 1.030766017, 2.036781269, 3.030711695, 4], False, 3, [1, 1, 1, 1, 1, 1, 1], False), False)
sketch2.addGeometry(Part.BSplineCurve([App.Vector(0.54386, -4.5, 0), App.Vector(0.639988, -4.647305, 0), App.Vector(0.824761, -4.930449, 0), App.Vector(1.092103, -5.33881, 0), App.Vector(1.331509, -5.719996, 0), App.Vector(1.558016, -6.065614, 0), App.Vector(1.752208, -6.387298, 0), App.Vector(1.934249, -6.672171, 0), App.Vector(2.089575, -6.929049, 0), App.Vector(2.184074, -7.091182, 0), App.Vector(2.22807, -7.166667, 0)], [4, 1, 1, 1, 1, 1, 1, 1, 4], [0, 1.338333826, 2.572483377, 3.7135535, 4.763123252, 5.716205277, 6.572152244, 7.33523879, 8], False, 3, [1, 1, 1, 1, 1, 1, 1, 1, 1, 1, 1], False), False)
sketch2.addGeometry(Part.BSplineCurve([App.Vector(-0.578947, -5.27193, 0), App.Vector(-0.4761, -5.213174, 0), App.Vector(-0.272664, -5.096954, 0), App.Vector(0.016998, -4.907628, 0), App.Vector(0.289138, -4.70943, 0), App.Vector(0.459607, -4.569272, 0), App.Vector(0.54386, -4.5, 0)], [4, 1, 1, 1, 4], [0, 1.041332516, 2.059786956, 3.041065375, 4], False, 3, [1, 1, 1, 1, 1, 1, 1], False), False)
sketch2.addGeometry(Part.BSplineCurve([App.Vector(0.964912, -8.008772, 0), App.Vector(0.856791, -7.766584, 0), App.Vector(0.641211, -7.283691, 0), App.Vector(0.269908, -6.586464, 0), App.Vector(-0.13122, -5.911864, 0), App.Vector(-0.429849, -5.485035, 0), App.Vector(-0.578947, -5.27193, 0)], [4, 1, 1, 1, 4], [0, 1.010640663, 2.01509614, 3.008987412, 4], False, 3, [1, 1, 1, 1, 1, 1, 1], False), False)
sketch2.addGeometry(Part.BSplineCurve([App.Vector(2.22807, -7.166667, 0), App.Vector(2.014894, -7.290904, 0), App.Vector(1.576913, -7.546156, 0), App.Vector(1.172492, -7.851861, 0), App.Vector(0.964912, -8.008772, 0)], [4, 1, 4], [0, 0.973451572, 2], False, 3, [1, 1, 1, 1, 1], False), False)
sketch2.addConstraint(Sketcher.Constraint("Block", 0))
sketch2.addConstraint(Sketcher.Constraint("Block", 1))
sketch2.addConstraint(Sketcher.Constraint("Block", 2))
sketch2.addConstraint(Sketcher.Constraint("Block", 3))
sketch2.addConstraint(Sketcher.Constraint("Block", 4))
sketch2.addConstraint(Sketcher.Constraint("Block", 6))
sketch2.addConstraint(Sketcher.Constraint("Block", 7))
sketch2.addConstraint(Sketcher.Constraint("Block", 8))
sketch2.addConstraint(Sketcher.Constraint("Block", 9))
sketch2.addConstraint(Sketcher.Constraint("Block", 10))
sketch2.addConstraint(Sketcher.Constraint("Block", 11))
sketch2.addConstraint(Sketcher.Constraint("Block", 12))
sketch2.addConstraint(Sketcher.Constraint("Block", 16))
sketch2.addConstraint(Sketcher.Constraint("Block", 18))
sketch2.addConstraint(Sketcher.Constraint("Block", 21))
sketch2.addConstraint(Sketcher.Constraint("Block", 22))
sketch2.addConstraint(Sketcher.Constraint("Block", 23))
sketch2.addConstraint(Sketcher.Constraint("Block", 26))
sketch2.addConstraint(Sketcher.Constraint("Block", 28))
sketch2.addConstraint(Sketcher.Constraint("Block", 31))
sketch2.addConstraint(Sketcher.Constraint("Block", 33))
sketch2.addConstraint(Sketcher.Constraint("Block", 34))
sketch2.addConstraint(Sketcher.Constraint("Block", 36))
sketch2.addConstraint(Sketcher.Constraint("Block", 37))
sketch2.addConstraint(Sketcher.Constraint("Block", 38))
sketch2.addConstraint(Sketcher.Constraint("Block", 40))
sketch2.addConstraint(Sketcher.Constraint("Block", 42))
sketch2.addConstraint(Sketcher.Constraint("Block", 44))
sketch2.addConstraint(Sketcher.Constraint("Block", 46))
sketch2.addConstraint(Sketcher.Constraint("Block", 47))
sketch2.addConstraint(Sketcher.Constraint("Block", 48))
sketch2.addConstraint(Sketcher.Constraint("Block", 49))
sketch2.addConstraint(Sketcher.Constraint("Block", 50))
sketch2.addConstraint(Sketcher.Constraint("Block", 51))
sketch2.addConstraint(Sketcher.Constraint("Block", 52))
sketch2.addConstraint(Sketcher.Constraint("Block", 53))
sketch2.addConstraint(Sketcher.Constraint("Coincident", 4, 1, 5, 1))
sketch2.addConstraint(Sketcher.Constraint("Coincident", 5, 2, 6, 2))
sketch2.addConstraint(Sketcher.Constraint("Coincident", 12, 1, 13, 1))
sketch2.addConstraint(Sketcher.Constraint("Coincident", 13, 2, 0, 2))
sketch2.addConstraint(Sketcher.Constraint("Coincident", 14, 2, 15, 1))
sketch2.addConstraint(Sketcher.Constraint("Coincident", 15, 2, 16, 2))
sketch2.addConstraint(Sketcher.Constraint("Coincident", 16, 1, 17, 1))
sketch2.addConstraint(Sketcher.Constraint("Coincident", 17, 2, 18, 2))
sketch2.addConstraint(Sketcher.Constraint("Coincident", 18, 1, 19, 1))
sketch2.addConstraint(Sketcher.Constraint("Coincident", 19, 2, 20, 1))
sketch2.addConstraint(Sketcher.Constraint("Coincident", 20, 2, 21, 2))
sketch2.addConstraint(Sketcher.Constraint("Coincident", 23, 1, 24, 1))
sketch2.addConstraint(Sketcher.Constraint("Coincident", 24, 2, 25, 1))
sketch2.addConstraint(Sketcher.Constraint("Coincident", 25, 2, 26, 2))
sketch2.addConstraint(Sketcher.Constraint("Coincident", 26, 1, 27, 1))
sketch2.addConstraint(Sketcher.Constraint("Coincident", 27, 2, 28, 2))
sketch2.addConstraint(Sketcher.Constraint("Coincident", 28, 1, 29, 1))
sketch2.addConstraint(Sketcher.Constraint("Coincident", 29, 2, 30, 1))
sketch2.addConstraint(Sketcher.Constraint("Coincident", 30, 2, 31, 2))
sketch2.addConstraint(Sketcher.Constraint("Coincident", 31, 1, 32, 1))
sketch2.addConstraint(Sketcher.Constraint("Coincident", 32, 2, 33, 2))
sketch2.addConstraint(Sketcher.Constraint("Coincident", 33, 1, 14, 1))
sketch2.addConstraint(Sketcher.Constraint("Coincident", 34, 1, 35, 1))
sketch2.addConstraint(Sketcher.Constraint("Coincident", 35, 2, 36, 2))
sketch2.addConstraint(Sketcher.Constraint("Coincident", 38, 1, 39, 1))
sketch2.addConstraint(Sketcher.Constraint("Coincident", 39, 2, 40, 2))
sketch2.addConstraint(Sketcher.Constraint("Coincident", 40, 1, 41, 1))
sketch2.addConstraint(Sketcher.Constraint("Coincident", 41, 2, 42, 2))
sketch2.addConstraint(Sketcher.Constraint("Coincident", 42, 1, 43, 1))
sketch2.addConstraint(Sketcher.Constraint("Coincident", 43, 2, 44, 2))
sketch2.addConstraint(Sketcher.Constraint("Coincident", 44, 1, 45, 1))
sketch2.addConstraint(Sketcher.Constraint("Coincident", 45, 2, 34, 2))
sketch2.addConstraint(Sketcher.Constraint("Vertical", 14))
sketch2.addConstraint(Sketcher.Constraint("Horizontal", 15))
sketch2.addConstraint(Sketcher.Constraint("Horizontal", 19))
sketch2.addConstraint(Sketcher.Constraint("Vertical", 20))
sketch2.addConstraint(Sketcher.Constraint("Vertical", 24))
sketch2.addConstraint(Sketcher.Constraint("Horizontal", 25))
sketch2.addConstraint(Sketcher.Constraint("Horizontal", 29))
sketch2.addConstraint(Sketcher.Constraint("Vertical", 30))
pad2 = doc.addObject("PartDesign::Pad", "Pad001")
body.addObject(pad2)
pad2.Profile = sketch2
pad2.setExpression("Length", "Params.pad2_length")

sketch3 = doc.addObject("Sketcher::SketchObject", "Sketch002")
body.addObject(sketch3)
sketch3.AttachmentSupport = (doc.XY_Plane, [""])
sketch3.MapMode = "FlatFace"
sketch3.addGeometry(Part.Circle(App.Vector(0, 0, 0), App.Vector(0, 0, 1), 13), False)
sketch3.addGeometry(Part.Circle(App.Vector(0, 0, 0), App.Vector(0, 0, 1), 13), False)
sketch3.addConstraint(Sketcher.Constraint("Coincident", 0, 3, -1, 1))
sketch3.addConstraint(Sketcher.Constraint("Coincident", 1, 3, -1, 1))
sketch3.addConstraint(Sketcher.Constraint("Diameter", 0, Q("26.2 mm")))
sketch3.addConstraint(Sketcher.Constraint("Diameter", 1, Q("25.4 mm")))
sketch3.setExpression("Constraints[2]", "Params.sketch3_diameter")
sketch3.setExpression("Constraints[3]", "Params.sketch3_diameter2")
pad3 = doc.addObject("PartDesign::Pad", "Pad002")
body.addObject(pad3)
pad3.Profile = sketch3
pad3.setExpression("Length", "Params.pad3_length")

doc.recompute()
